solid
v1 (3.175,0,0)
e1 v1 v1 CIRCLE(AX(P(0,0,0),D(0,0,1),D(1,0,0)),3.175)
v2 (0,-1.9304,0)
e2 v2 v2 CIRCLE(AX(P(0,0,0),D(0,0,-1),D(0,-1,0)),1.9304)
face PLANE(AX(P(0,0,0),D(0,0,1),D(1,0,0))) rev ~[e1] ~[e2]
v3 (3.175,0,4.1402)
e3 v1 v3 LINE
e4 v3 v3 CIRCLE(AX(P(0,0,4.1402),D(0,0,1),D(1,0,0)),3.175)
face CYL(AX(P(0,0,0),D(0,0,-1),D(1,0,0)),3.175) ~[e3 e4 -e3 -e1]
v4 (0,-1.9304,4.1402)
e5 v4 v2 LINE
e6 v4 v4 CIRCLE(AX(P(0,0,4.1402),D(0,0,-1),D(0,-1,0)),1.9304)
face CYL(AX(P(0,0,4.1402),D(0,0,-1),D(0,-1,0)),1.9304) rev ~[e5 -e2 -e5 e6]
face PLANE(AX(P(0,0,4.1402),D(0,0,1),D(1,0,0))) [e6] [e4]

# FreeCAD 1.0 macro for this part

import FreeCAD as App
import Part
import Sketcher
Q = App.Units.Quantity

doc = App.newDocument("Part")
params = doc.addObject("Spreadsheet::Sheet", "Params")
for row, (alias, value) in enumerate([
    ("sketch1_diameter", "0.25 in"),
    ("pad1_length", "0.163 in"),
    ("sketch2_diameter", "0.152 in"),
    ("hole_diameter", "0.152 in"),
    ("hole_depth", "3.75 in"),
], start=1):
    params.set(f"A{row}", alias)
    params.set(f"B{row}", "=" + value)
    params.setAlias(f"B{row}", alias)

body = doc.addObject("PartDesign::Body", "Body")

# Sketch on XY plane
sketch1 = body.newObject("Sketcher::SketchObject", "Sketch")
sketch1.AttachmentSupport = (doc.getObject("XY_Plane"), [""])
sketch1.MapMode = "FlatFace"
sketch1.addGeometry(Part.Circle(App.Vector(0, 0, 0), App.Vector(0, 0, 1), 3.175), False)
sketch1.addConstraint([
    Sketcher.Constraint("Coincident", 0, 3, -1, 1),
    Sketcher.Constraint("Diameter", 0, Q("0.25 in")),
])
sketch1.setExpression("Constraints[1]", "Params.sketch1_diameter")
pad1 = body.newObject("PartDesign::Pad", "Pad")
pad1.Profile = sketch1
pad1.setExpression("Length", "Params.pad1_length")

# Sketch on XY plane
sketch2 = body.newObject("Sketcher::SketchObject", "Sketch001")
sketch2.AttachmentSupport = (doc.getObject("XY_Plane"), [""])
sketch2.MapMode = "FlatFace"
sketch2.AttachmentOffset = App.Placement(App.Vector(0, 0, 0.163 * 25.4), App.Rotation())
sketch2.addGeometry(Part.Circle(App.Vector(0, 0, 0), App.Vector(0, 0, 1), 1.9304), False)
sketch2.addConstraint([
    Sketcher.Constraint("Coincident", 0, 3, -1, 1),
    Sketcher.Constraint("Diameter", 0, Q("0.152 in")),
])
sketch2.setExpression("Constraints[1]", "Params.sketch2_diameter")
doc.recompute()
hole = body.newObject("PartDesign::Hole", "Hole")
hole.Profile = sketch2
hole.ThreadType = "None"
hole.setExpression("Diameter", "Params.hole_diameter")
hole.DepthType = "Dimension"
hole.setExpression("Depth", "Params.hole_depth")
hole.DrillPoint = "Angled"
hole.DrillPointAngle = 118

doc.recompute()
